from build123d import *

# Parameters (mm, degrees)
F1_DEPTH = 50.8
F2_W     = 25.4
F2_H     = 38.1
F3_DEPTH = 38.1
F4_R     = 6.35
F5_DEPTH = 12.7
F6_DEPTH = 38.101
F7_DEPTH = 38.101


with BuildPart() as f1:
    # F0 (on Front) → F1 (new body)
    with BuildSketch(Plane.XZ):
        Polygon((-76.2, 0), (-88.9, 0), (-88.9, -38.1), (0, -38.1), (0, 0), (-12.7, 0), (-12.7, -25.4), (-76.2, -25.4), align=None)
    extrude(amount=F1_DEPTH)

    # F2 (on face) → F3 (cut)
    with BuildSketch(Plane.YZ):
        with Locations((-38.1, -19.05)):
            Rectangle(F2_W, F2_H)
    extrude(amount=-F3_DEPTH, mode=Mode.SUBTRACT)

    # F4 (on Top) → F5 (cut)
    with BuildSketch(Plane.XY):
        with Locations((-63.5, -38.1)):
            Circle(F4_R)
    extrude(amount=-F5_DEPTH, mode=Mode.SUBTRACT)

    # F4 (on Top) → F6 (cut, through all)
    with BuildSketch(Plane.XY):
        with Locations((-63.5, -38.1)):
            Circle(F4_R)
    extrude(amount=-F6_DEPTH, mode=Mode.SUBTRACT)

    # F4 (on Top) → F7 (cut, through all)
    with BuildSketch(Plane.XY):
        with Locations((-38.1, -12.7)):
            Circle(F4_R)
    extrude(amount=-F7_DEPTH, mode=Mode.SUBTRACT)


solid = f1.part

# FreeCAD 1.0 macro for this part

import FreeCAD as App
import Part
import Sketcher

V = App.Vector
Q = App.Units.Quantity

doc = App.newDocument("Part")
body = doc.addObject("PartDesign::Body", "Body")

# Sketch on XZ plane
sketch1 = doc.addObject("Sketcher::SketchObject", "Sketch")
body.addObject(sketch1)
sketch1.AttachmentSupport = (doc.XZ_Plane, [""])
sketch1.MapMode = "FlatFace"
sketch1.addGeometry([
    Part.LineSegment(V(-76.2, 0, 0), V(-88.9, 0, 0)),  # 0
    Part.LineSegment(V(-88.9, 0, 0), V(-88.9, -38.1, 0)),  # 1
    Part.LineSegment(V(-88.9, -38.1, 0), V(0, -38.1, 0)),  # 2
    Part.LineSegment(V(0, -38.1, 0), V(0, 0, 0)),  # 3
    Part.LineSegment(V(0, 0, 0), V(-12.7, 0, 0)),  # 4
    Part.LineSegment(V(-12.7, 0, 0), V(-12.7, -25.4, 0)),  # 5
    Part.LineSegment(V(-12.7, -25.4, 0), V(-76.2, -25.4, 0)),  # 6
    Part.LineSegment(V(-76.2, -25.4, 0), V(-76.2, 0, 0)),  # 7
], False)
sketch1.addConstraint([
    Sketcher.Constraint("Coincident", 0, 2, 1, 1),
    Sketcher.Constraint("Coincident", 1, 2, 2, 1),
    Sketcher.Constraint("Coincident", 2, 2, 3, 1),
    Sketcher.Constraint("Coincident", 3, 2, 4, 1),
    Sketcher.Constraint("Coincident", 4, 2, 5, 1),
    Sketcher.Constraint("Coincident", 5, 2, 6, 1),
    Sketcher.Constraint("Coincident", 6, 2, 7, 1),
    Sketcher.Constraint("Coincident", 7, 2, 0, 1),
    Sketcher.Constraint("Horizontal", 0),
    Sketcher.Constraint("Vertical", 1),
    Sketcher.Constraint("Horizontal", 2),
    Sketcher.Constraint("Vertical", 3),
    Sketcher.Constraint("Horizontal", 4),
    Sketcher.Constraint("Vertical", 5),
    Sketcher.Constraint("Horizontal", 6),
    Sketcher.Constraint("Vertical", 7),
    Sketcher.Constraint("Coincident", 3, 2, -1, 1),
    Sketcher.Constraint("PointOnObject", 0, 2, -1),
    Sketcher.Constraint("Equal", 0, 4),
    Sketcher.Constraint("DistanceY", 5, 2, 5, 1, Q("1 in")),
    Sketcher.Constraint("DistanceX", 0, 2, 0, 1, Q("0.5 in")),
    Sketcher.Constraint("DistanceX", 2, 1, 2, 2, Q("3.5 in")),
    Sketcher.Constraint("DistanceY", 1, 2, 1, 1, Q("1.5 in")),
])
pad1 = doc.addObject("PartDesign::Pad", "Pad")
body.addObject(pad1)
pad1.Profile = sketch1
pad1.Length = Q("2 in")

# Sketch on YZ plane
sketch2 = doc.addObject("Sketcher::SketchObject", "Sketch001")
body.addObject(sketch2)
sketch2.AttachmentSupport = (doc.YZ_Plane, [""])
sketch2.MapMode = "FlatFace"
sketch2.addGeometry([
    Part.LineSegment(V(-50.8, 0, 0), V(-50.8, -38.1, 0)),
    Part.LineSegment(V(-50.8, -38.1, 0), V(-25.4, -38.1, 0)),
    Part.LineSegment(V(-25.4, -38.1, 0), V(-25.4, 0, 0)),
    Part.LineSegment(V(-25.4, 0, 0), V(-50.8, 0, 0)),
], False)
sketch2.addConstraint([
    Sketcher.Constraint("Coincident", 0, 2, 1, 1),
    Sketcher.Constraint("Coincident", 1, 2, 2, 1),
    Sketcher.Constraint("Coincident", 2, 2, 3, 1),
    Sketcher.Constraint("Coincident", 3, 2, 0, 1),
    Sketcher.Constraint("Vertical", 0),
    Sketcher.Constraint("Horizontal", 1),
    Sketcher.Constraint("Vertical", 2),
    Sketcher.Constraint("Horizontal", 3),
    Sketcher.Constraint("PointOnObject", 2, 2, -1),
    Sketcher.Constraint("DistanceX", 1, 1, 1, 2, Q("1 in")),
    Sketcher.Constraint("DistanceY", 0, 2, 0, 1, Q("1.5 in")),
    Sketcher.Constraint("DistanceX", 0, 2, -1, 1, Q("2 in")),
])
pocket1 = doc.addObject("PartDesign::Pocket", "Pocket")
body.addObject(pocket1)
pocket1.Profile = sketch2
pocket1.Length = Q("1.5 in")

# Sketch on XY plane
sketch3 = doc.addObject("Sketcher::SketchObject", "Sketch002")
body.addObject(sketch3)
sketch3.AttachmentSupport = (doc.XY_Plane, [""])
sketch3.MapMode = "FlatFace"
sketch3.addGeometry(Part.Circle(V(-63.5, -38.1, 0), V(0, 0, 1), 6.35), False)
sketch3.addConstraint([
    Sketcher.Constraint("Diameter", 0, Q("0.5 in")),
    Sketcher.Constraint("DistanceX", 0, 3, -1, 1, Q("2.5 in")),
    Sketcher.Constraint("DistanceY", 0, 3, -1, 1, Q("1.5 in")),
])
pocket2 = doc.addObject("PartDesign::Pocket", "Pocket001")
body.addObject(pocket2)
pocket2.Profile = sketch3
pocket2.Length = Q("0.5 in")

# Sketch on XY plane
sketch4 = doc.addObject("Sketcher::SketchObject", "Sketch003")
body.addObject(sketch4)
sketch4.AttachmentSupport = (doc.XY_Plane, [""])
sketch4.MapMode = "FlatFace"
sketch4.addGeometry(Part.Circle(V(-63.5, -38.1, 0), V(0, 0, 1), 6.35), False)
sketch4.addConstraint([
    Sketcher.Constraint("Diameter", 0, Q("0.5 in")),
    Sketcher.Constraint("DistanceX", 0, 3, -1, 1, Q("2.5 in")),
    Sketcher.Constraint("DistanceY", 0, 3, -1, 1, Q("1.5 in")),
])
pocket3 = doc.addObject("PartDesign::Pocket", "Pocket002")
body.addObject(pocket3)
pocket3.Profile = sketch4
pocket3.Type = "ThroughAll"

# Sketch on XY plane
sketch5 = doc.addObject("Sketcher::SketchObject", "Sketch004")
body.addObject(sketch5)
sketch5.AttachmentSupport = (doc.XY_Plane, [""])
sketch5.MapMode = "FlatFace"
sketch5.addGeometry(Part.Circle(V(-38.1, -12.7, 0), V(0, 0, 1), 6.35), False)
sketch5.addConstraint([
    Sketcher.Constraint("Diameter", 0, Q("0.5 in")),
    Sketcher.Constraint("DistanceX", 0, 3, -1, 1, Q("1.5 in")),
    Sketcher.Constraint("DistanceY", 0, 3, -1, 1, Q("0.5 in")),
])
pocket4 = doc.addObject("PartDesign::Pocket", "Pocket003")
body.addObject(pocket4)
pocket4.Profile = sketch5
pocket4.Type = "ThroughAll"

doc.recompute()
